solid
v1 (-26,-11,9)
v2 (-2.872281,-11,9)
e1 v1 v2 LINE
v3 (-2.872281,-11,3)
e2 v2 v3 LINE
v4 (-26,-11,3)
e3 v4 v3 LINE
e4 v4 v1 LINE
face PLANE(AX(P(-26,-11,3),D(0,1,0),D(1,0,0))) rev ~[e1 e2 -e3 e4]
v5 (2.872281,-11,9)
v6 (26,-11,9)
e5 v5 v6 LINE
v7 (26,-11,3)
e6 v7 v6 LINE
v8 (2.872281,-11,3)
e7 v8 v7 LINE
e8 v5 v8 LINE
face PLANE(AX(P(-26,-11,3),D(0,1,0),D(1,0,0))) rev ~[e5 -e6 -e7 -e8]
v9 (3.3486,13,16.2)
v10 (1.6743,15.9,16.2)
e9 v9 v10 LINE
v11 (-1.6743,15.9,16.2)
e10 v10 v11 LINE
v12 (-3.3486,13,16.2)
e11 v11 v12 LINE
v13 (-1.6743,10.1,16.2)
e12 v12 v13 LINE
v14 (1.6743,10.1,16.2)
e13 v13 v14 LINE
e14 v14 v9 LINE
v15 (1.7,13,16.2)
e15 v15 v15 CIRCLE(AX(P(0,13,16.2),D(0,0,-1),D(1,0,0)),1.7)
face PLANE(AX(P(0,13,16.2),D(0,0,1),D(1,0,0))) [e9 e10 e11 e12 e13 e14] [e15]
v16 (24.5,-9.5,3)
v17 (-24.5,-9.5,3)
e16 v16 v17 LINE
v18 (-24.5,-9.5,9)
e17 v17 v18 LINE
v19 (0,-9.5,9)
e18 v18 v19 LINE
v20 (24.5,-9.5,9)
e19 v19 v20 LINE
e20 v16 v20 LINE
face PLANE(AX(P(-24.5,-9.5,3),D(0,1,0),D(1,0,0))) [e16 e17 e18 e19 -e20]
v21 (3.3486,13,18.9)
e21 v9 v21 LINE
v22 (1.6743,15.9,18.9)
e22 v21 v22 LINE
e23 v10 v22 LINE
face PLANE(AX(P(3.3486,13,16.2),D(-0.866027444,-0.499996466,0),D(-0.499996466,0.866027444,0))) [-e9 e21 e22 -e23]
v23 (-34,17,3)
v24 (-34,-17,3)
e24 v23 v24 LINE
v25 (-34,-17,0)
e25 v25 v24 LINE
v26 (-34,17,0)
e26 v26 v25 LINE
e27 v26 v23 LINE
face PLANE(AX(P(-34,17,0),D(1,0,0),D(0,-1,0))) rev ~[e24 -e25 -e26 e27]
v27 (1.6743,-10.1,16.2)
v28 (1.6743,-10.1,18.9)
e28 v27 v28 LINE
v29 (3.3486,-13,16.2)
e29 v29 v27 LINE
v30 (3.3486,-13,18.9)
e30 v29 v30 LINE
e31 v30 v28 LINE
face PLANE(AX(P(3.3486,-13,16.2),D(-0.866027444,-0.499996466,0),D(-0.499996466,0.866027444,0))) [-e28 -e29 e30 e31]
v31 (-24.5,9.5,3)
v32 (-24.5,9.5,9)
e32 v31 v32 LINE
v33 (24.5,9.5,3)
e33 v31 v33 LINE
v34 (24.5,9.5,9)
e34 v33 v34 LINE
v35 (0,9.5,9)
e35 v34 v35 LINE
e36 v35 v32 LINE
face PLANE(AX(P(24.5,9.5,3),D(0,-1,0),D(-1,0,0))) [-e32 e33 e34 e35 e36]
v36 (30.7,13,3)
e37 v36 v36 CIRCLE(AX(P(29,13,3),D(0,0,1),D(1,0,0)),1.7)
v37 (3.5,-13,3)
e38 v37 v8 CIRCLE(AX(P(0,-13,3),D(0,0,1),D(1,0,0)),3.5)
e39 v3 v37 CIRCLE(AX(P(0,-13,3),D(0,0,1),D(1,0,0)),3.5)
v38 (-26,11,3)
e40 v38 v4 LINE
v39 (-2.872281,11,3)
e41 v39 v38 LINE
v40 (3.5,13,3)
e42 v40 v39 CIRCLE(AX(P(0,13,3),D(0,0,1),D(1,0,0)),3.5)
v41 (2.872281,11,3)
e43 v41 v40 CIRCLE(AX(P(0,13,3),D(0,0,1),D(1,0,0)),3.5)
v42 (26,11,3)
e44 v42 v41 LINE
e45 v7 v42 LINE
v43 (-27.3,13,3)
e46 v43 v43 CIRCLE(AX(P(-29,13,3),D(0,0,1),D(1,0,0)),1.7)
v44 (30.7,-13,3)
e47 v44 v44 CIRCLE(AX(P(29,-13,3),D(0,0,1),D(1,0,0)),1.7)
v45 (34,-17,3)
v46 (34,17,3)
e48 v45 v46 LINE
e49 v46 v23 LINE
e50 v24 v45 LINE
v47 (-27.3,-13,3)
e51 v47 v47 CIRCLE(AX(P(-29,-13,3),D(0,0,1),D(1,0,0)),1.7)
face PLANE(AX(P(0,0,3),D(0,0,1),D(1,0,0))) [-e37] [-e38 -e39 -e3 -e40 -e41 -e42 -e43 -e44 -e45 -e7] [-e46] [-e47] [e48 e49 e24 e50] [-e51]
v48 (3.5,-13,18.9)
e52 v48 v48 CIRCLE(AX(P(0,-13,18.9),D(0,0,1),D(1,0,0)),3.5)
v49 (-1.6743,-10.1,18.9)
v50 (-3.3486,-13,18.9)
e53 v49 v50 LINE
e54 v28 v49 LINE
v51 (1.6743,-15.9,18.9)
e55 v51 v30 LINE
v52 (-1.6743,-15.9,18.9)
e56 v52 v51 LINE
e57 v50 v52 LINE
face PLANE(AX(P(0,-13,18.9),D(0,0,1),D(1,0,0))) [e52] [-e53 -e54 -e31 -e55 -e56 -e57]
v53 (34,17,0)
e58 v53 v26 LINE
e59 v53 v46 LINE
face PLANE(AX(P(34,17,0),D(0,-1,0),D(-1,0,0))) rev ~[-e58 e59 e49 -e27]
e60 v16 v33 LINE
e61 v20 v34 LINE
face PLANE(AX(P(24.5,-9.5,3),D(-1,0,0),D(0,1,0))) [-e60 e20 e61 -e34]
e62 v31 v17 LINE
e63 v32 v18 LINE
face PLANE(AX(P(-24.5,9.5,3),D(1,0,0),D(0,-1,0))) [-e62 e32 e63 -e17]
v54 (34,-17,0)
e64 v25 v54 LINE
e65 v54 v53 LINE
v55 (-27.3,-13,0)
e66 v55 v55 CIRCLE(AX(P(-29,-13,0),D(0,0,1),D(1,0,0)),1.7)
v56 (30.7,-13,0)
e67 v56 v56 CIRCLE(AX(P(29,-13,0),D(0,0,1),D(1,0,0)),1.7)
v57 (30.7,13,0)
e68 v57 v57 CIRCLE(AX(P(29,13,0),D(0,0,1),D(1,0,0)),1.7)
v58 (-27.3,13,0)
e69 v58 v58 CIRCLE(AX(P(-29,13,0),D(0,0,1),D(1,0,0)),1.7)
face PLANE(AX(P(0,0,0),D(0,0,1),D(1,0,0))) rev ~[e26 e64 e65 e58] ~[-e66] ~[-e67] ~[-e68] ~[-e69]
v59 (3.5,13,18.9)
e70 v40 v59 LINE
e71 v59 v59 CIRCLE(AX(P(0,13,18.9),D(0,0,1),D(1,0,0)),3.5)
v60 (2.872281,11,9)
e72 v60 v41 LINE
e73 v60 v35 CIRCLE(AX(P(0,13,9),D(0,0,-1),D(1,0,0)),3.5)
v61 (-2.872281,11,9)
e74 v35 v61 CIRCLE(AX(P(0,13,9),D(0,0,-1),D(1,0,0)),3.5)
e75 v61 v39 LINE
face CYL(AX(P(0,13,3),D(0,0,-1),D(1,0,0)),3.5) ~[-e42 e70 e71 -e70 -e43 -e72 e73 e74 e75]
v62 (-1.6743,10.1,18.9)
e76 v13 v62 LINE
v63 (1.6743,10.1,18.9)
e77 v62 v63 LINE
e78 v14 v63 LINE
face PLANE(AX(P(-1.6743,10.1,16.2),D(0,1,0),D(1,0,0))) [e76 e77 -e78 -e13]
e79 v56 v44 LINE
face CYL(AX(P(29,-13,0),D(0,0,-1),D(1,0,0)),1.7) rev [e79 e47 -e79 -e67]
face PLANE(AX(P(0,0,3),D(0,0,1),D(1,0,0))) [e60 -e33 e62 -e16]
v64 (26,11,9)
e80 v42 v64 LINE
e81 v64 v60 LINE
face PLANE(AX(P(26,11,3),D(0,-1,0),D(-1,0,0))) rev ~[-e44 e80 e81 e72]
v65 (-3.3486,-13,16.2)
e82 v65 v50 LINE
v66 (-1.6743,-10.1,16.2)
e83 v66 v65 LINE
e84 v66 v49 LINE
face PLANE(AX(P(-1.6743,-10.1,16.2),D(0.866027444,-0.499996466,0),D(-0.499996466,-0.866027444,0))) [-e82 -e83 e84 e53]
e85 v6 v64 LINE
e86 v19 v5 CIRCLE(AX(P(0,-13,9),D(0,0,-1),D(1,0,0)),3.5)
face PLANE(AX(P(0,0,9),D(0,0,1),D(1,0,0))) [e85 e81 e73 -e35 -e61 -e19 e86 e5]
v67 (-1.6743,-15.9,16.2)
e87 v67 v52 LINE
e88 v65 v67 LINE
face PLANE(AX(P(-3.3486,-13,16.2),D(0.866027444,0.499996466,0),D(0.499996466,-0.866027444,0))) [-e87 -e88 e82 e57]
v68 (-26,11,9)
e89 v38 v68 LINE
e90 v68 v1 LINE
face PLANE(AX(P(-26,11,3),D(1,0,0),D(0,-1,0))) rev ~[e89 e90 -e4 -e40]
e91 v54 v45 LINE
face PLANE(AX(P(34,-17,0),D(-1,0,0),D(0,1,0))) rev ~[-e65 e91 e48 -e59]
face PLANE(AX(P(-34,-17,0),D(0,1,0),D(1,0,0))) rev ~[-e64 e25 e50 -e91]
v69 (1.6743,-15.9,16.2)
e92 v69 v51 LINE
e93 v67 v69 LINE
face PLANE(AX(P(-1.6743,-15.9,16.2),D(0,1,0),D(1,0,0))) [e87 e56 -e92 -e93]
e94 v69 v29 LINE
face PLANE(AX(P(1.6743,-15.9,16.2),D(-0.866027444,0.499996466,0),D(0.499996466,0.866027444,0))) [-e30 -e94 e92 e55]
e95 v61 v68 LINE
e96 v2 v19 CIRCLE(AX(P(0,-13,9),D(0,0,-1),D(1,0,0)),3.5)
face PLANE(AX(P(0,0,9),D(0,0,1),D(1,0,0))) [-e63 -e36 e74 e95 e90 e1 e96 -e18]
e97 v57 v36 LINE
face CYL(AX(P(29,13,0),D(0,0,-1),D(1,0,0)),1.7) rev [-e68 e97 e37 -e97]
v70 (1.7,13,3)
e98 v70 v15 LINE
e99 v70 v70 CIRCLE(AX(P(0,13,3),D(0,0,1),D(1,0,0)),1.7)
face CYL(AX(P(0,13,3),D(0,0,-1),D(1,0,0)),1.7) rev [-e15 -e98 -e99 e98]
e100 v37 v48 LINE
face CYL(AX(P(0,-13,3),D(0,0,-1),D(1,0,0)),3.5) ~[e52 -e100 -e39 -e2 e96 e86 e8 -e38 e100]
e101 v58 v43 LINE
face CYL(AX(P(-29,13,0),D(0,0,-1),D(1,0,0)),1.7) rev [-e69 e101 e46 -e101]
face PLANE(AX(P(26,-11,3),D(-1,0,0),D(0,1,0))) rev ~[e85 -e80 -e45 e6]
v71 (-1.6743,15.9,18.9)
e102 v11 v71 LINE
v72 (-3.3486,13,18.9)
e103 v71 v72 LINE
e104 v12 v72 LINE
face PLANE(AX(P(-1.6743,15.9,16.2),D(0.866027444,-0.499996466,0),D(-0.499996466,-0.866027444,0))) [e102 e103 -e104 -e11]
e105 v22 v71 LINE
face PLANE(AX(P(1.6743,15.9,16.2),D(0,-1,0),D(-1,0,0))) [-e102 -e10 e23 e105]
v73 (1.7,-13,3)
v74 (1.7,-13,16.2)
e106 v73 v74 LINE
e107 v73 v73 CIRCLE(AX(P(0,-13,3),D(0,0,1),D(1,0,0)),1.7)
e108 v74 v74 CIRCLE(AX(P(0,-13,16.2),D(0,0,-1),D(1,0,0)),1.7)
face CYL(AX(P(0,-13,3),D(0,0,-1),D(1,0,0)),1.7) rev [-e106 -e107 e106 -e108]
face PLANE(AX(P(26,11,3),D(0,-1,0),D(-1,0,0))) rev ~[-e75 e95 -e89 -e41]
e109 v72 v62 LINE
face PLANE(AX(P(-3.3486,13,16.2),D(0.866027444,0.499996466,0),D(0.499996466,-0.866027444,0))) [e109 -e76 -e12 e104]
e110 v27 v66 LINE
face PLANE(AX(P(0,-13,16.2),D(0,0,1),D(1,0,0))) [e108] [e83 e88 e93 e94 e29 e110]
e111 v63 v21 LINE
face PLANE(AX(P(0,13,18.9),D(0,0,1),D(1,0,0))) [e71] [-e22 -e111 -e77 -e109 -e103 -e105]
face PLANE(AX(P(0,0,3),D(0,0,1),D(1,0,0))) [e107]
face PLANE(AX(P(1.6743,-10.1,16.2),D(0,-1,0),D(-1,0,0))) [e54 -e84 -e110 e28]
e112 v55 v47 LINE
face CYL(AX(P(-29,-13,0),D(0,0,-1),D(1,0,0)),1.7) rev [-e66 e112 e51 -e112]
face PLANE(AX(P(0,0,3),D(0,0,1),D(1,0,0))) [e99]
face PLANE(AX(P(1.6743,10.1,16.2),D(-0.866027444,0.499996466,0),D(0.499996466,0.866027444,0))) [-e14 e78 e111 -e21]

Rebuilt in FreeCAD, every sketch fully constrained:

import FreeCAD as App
import Part
import Sketcher
from FreeCAD import Vector
Q = App.Units.Quantity


def add_polygon(sketch, points):
    """Adds a closed chain of lines whose ends are joined by coincident constraints."""
    first, n = sketch.GeometryCount, len(points)
    for a, b in zip(points, points[1:] + points[:1]):
        sketch.addGeometry(Part.LineSegment(App.Vector(*a, 0), App.Vector(*b, 0)), False)
    for i in range(n):
        sketch.addConstraint(Sketcher.Constraint("Coincident", first + i, 2, first + (i + 1) % n, 1))

doc = App.newDocument("Part")
body = doc.addObject("PartDesign::Body", "Body")

sketch1 = body.newObject("Sketcher::SketchObject", "Sketch")
sketch1.AttachmentSupport = (doc.getObject("XY_Plane"), [""])
sketch1.MapMode = "FlatFace"
add_polygon(sketch1, [(-34, 17), (-34, -17), (34, -17), (34, 17)])
sketch1.addGeometry(Part.Circle(Vector(-29, -13, 0), Vector(0, 0, 1), 1.7), False)
sketch1.addGeometry(Part.Circle(Vector(29, -13, 0), Vector(0, 0, 1), 1.7), False)
sketch1.addGeometry(Part.Circle(Vector(-29, 13, 0), Vector(0, 0, 1), 1.7), False)
sketch1.addGeometry(Part.Circle(Vector(29, 13, 0), Vector(0, 0, 1), 1.7), False)
sketch1.addConstraint([
    Sketcher.Constraint("Vertical", 0),
    Sketcher.Constraint("Horizontal", 1),
    Sketcher.Constraint("Vertical", 2),
    Sketcher.Constraint("Horizontal", 3),
    Sketcher.Constraint("Equal", 4, 5),
    Sketcher.Constraint("Equal", 5, 6),
    Sketcher.Constraint("Equal", 6, 7),
    Sketcher.Constraint("Symmetric", 5, 3, 6, 3, -1, 1),
    Sketcher.Constraint("Symmetric", 4, 3, 7, 3, -1, 1),
    Sketcher.Constraint("Symmetric", 0, 2, 2, 2, -1, 1),
    Sketcher.Constraint("Symmetric", 4, 3, 5, 3, -2),
    Sketcher.Constraint("Diameter", 4, 3.4),
    Sketcher.Constraint("DistanceX", 1, 1, 1, 2, 68.0),
    Sketcher.Constraint("DistanceY", 0, 2, 0, 1, 34.0),
    Sketcher.Constraint("DistanceX", 4, 3, -1, 1, 29.0),
    Sketcher.Constraint("DistanceY", 4, 3, -1, 1, 13.0),
])
pad1 = body.newObject("PartDesign::Pad", "Pad")
pad1.Profile = sketch1
pad1.Length = 3

sketch2 = body.newObject("Sketcher::SketchObject", "Sketch001")
sketch2.AttachmentSupport = (doc.getObject("XY_Plane"), [""])
sketch2.MapMode = "FlatFace"
sketch2.AttachmentOffset = App.Placement(Vector(0, 0, 3), App.Rotation())
add_polygon(sketch2, [(-26, 11), (-26, -11), (26, -11), (26, 11)])
add_polygon(sketch2, [(24, -10), (-24, -10), (-24, 10), (24, 10)])
sketch2.addConstraint([
    Sketcher.Constraint("Vertical", 0),
    Sketcher.Constraint("Horizontal", 1),
    Sketcher.Constraint("Vertical", 2),
    Sketcher.Constraint("Horizontal", 3),
    Sketcher.Constraint("Horizontal", 4),
    Sketcher.Constraint("Vertical", 5),
    Sketcher.Constraint("Horizontal", 6),
    Sketcher.Constraint("Vertical", 7),
    Sketcher.Constraint("Symmetric", 0, 2, 2, 2, -1, 1),
    Sketcher.Constraint("Symmetric", 4, 2, 6, 2, -1, 1),
    Sketcher.Constraint("DistanceX", 1, 1, 1, 2, 52.0),
    Sketcher.Constraint("DistanceX", 4, 2, 4, 1, 49.0),
    Sketcher.Constraint("DistanceY", 0, 2, 0, 1, 22.0),
    Sketcher.Constraint("DistanceY", 5, 1, 5, 2, 19.0),
])
pad2 = body.newObject("PartDesign::Pad", "Pad001")
pad2.Profile = sketch2
pad2.Length = 6

sketch3 = body.newObject("Sketcher::SketchObject", "Sketch002")
sketch3.AttachmentSupport = (doc.getObject("XY_Plane"), [""])
sketch3.MapMode = "FlatFace"
sketch3.AttachmentOffset = App.Placement(Vector(0, 0, 3), App.Rotation())
sketch3.addGeometry([
    Part.Circle(Vector(0, -13, 0), Vector(0, 0, 1), 3.5),
    Part.Circle(Vector(0, -13, 0), Vector(0, 0, 1), 1.7),
    Part.Circle(Vector(0, 13, 0), Vector(0, 0, 1), 3.5),
    Part.Circle(Vector(0, 13, 0), Vector(0, 0, 1), 1.7),
], False)
sketch3.addConstraint([
    Sketcher.Constraint("Coincident", 1, 3, 0, 3),
    Sketcher.Constraint("Coincident", 3, 3, 2, 3),
    Sketcher.Constraint("Equal", 0, 2),
    Sketcher.Constraint("Equal", 1, 3),
    Sketcher.Constraint("Symmetric", 0, 3, 2, 3, -1, 1),
    Sketcher.Constraint("PointOnObject", 0, 3, -2),
    Sketcher.Constraint("Diameter", 0, 7.0),
    Sketcher.Constraint("Diameter", 1, 3.4),
    Sketcher.Constraint("DistanceY", 0, 3, -1, 1, 13.0),
])
pad3 = body.newObject("PartDesign::Pad", "Pad002")
pad3.Profile = sketch3
pad3.Length = 15.9

sketch4 = body.newObject("Sketcher::SketchObject", "Sketch003")
sketch4.AttachmentSupport = (doc.getObject("XY_Plane"), [""])
sketch4.MapMode = "FlatFace"
sketch4.AttachmentOffset = App.Placement(Vector(0, 0, 16.2), App.Rotation())
add_polygon(sketch4, [(1.7, -15.9), (3.3, -13), (1.7, -10.1), (-1.7, -10.1), (-3.3, -13), (-1.7, -15.9)])
add_polygon(sketch4, [(1.7, 10.1), (3.3, 13), (1.7, 15.9), (-1.7, 15.9), (-3.3, 13), (-1.7, 10.1)])
sketch4.addConstraint([
    Sketcher.Constraint("Horizontal", 2),
    Sketcher.Constraint("Horizontal", 5),
    Sketcher.Constraint("Horizontal", 8),
    Sketcher.Constraint("Horizontal", 11),
    Sketcher.Constraint("Symmetric", 3, 2, 6, 2, -1, 1),
    Sketcher.Constraint("Symmetric", 4, 2, 7, 2, -1, 1),
    Sketcher.Constraint("Symmetric", 0, 2, 9, 2, -1, 1),
    Sketcher.Constraint("Symmetric", 1, 2, 10, 2, -1, 1),
    Sketcher.Constraint("Symmetric", 0, 2, 3, 2, -2),
    Sketcher.Constraint("Parallel", 0, 3),
    Sketcher.Constraint("Parallel", 1, 4),
    Sketcher.Constraint("Parallel", 3, 6),
    Sketcher.Constraint("Parallel", 6, 9),
    Sketcher.Constraint("Vertical", 2, 2, 4, 2),
    Sketcher.Constraint("Vertical", 1, 2, 5, 2),
    Sketcher.Constraint("Angle", 0, Q("60.0002 deg")),
    Sketcher.Constraint("DistanceY", 0, 2, -1, 1, 13.0),
    Sketcher.Constraint("DistanceY", 1, 2, -1, 1, 10.1),
    Sketcher.Constraint("DistanceX", 2, 2, 2, 1, 3.3486),
])
pocket1 = body.newObject("PartDesign::Pocket", "Pocket")
pocket1.Profile = sketch4
pocket1.Length = 2.7
pocket1.Reversed = True

doc.recompute()
